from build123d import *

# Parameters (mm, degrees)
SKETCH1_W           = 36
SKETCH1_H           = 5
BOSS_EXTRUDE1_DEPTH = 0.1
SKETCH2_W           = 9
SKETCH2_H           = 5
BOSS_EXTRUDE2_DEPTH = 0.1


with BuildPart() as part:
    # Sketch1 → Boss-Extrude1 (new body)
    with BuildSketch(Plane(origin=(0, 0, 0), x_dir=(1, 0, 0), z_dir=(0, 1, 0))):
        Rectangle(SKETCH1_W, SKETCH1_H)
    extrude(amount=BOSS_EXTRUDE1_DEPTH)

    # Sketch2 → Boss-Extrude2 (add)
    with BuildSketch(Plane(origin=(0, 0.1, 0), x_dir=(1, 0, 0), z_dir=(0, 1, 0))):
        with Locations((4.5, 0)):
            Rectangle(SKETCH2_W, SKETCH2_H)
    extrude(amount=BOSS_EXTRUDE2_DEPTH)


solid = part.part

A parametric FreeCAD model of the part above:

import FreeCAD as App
import Part
import Sketcher

doc = App.newDocument("Part")
body = doc.addObject("PartDesign::Body", "Body")

sketch1 = body.newObject("Sketcher::SketchObject", "Sketch")
sketch1.AttachmentSupport = (doc.getObject("XZ_Plane"), [""])
sketch1.MapMode = "FlatFace"
sketch1.addGeometry(Part.LineSegment(App.Vector(-18, -2, 0), App.Vector(-18, 2, 0)), False)
sketch1.addGeometry(Part.LineSegment(App.Vector(-18, 2, 0), App.Vector(18, 2, 0)), False)
sketch1.addGeometry(Part.LineSegment(App.Vector(18, 2, 0), App.Vector(18, -2, 0)), False)
sketch1.addGeometry(Part.LineSegment(App.Vector(18, -2, 0), App.Vector(-18, -2, 0)), False)
sketch1.addConstraint(Sketcher.Constraint("Coincident", 0, 2, 1, 1))
sketch1.addConstraint(Sketcher.Constraint("Coincident", 1, 2, 2, 1))
sketch1.addConstraint(Sketcher.Constraint("Coincident", 2, 2, 3, 1))
sketch1.addConstraint(Sketcher.Constraint("Coincident", 3, 2, 0, 1))
sketch1.addConstraint(Sketcher.Constraint("Vertical", 0))
sketch1.addConstraint(Sketcher.Constraint("Horizontal", 1))
sketch1.addConstraint(Sketcher.Constraint("Vertical", 2))
sketch1.addConstraint(Sketcher.Constraint("Horizontal", 3))
sketch1.addConstraint(Sketcher.Constraint("Symmetric", 0, 2, 2, 2, -1, 1))
sketch1.addConstraint(Sketcher.Constraint("DistanceX", 1, 1, 1, 2, 36.0))
sketch1.addConstraint(Sketcher.Constraint("DistanceY", 0, 1, 0, 2, 5.0))
pad1 = body.newObject("PartDesign::Pad", "Pad")
pad1.Profile = sketch1
pad1.Length = 0.1
pad1.Reversed = True

sketch2 = body.newObject("Sketcher::SketchObject", "Sketch001")
sketch2.AttachmentSupport = (doc.getObject("XZ_Plane"), [""])
sketch2.MapMode = "FlatFace"
sketch2.AttachmentOffset = App.Placement(App.Vector(0, 0, -0.1), App.Rotation())
sketch2.addGeometry(Part.LineSegment(App.Vector(0, -2, 0), App.Vector(0, 2, 0)), False)
sketch2.addGeometry(Part.LineSegment(App.Vector(0, 2, 0), App.Vector(9, 2, 0)), False)
sketch2.addGeometry(Part.LineSegment(App.Vector(9, 2, 0), App.Vector(9, -2, 0)), False)
sketch2.addGeometry(Part.LineSegment(App.Vector(9, -2, 0), App.Vector(0, -2, 0)), False)
sketch2.addConstraint(Sketcher.Constraint("Coincident", 0, 2, 1, 1))
sketch2.addConstraint(Sketcher.Constraint("Coincident", 1, 2, 2, 1))
sketch2.addConstraint(Sketcher.Constraint("Coincident", 2, 2, 3, 1))
sketch2.addConstraint(Sketcher.Constraint("Coincident", 3, 2, 0, 1))
sketch2.addConstraint(Sketcher.Constraint("Vertical", 0))
sketch2.addConstraint(Sketcher.Constraint("Horizontal", 1))
sketch2.addConstraint(Sketcher.Constraint("Vertical", 2))
sketch2.addConstraint(Sketcher.Constraint("Horizontal", 3))
sketch2.addConstraint(Sketcher.Constraint("Symmetric", 0, 2, 3, 2, -1, 1))
sketch2.addConstraint(Sketcher.Constraint("DistanceX", 1, 1, 1, 2, 9.0))
sketch2.addConstraint(Sketcher.Constraint("DistanceY", 0, 1, 0, 2, 5.0))
pad2 = body.newObject("PartDesign::Pad", "Pad001")
pad2.Profile = sketch2
pad2.Length = 0.1
pad2.Reversed = True

doc.recompute()
